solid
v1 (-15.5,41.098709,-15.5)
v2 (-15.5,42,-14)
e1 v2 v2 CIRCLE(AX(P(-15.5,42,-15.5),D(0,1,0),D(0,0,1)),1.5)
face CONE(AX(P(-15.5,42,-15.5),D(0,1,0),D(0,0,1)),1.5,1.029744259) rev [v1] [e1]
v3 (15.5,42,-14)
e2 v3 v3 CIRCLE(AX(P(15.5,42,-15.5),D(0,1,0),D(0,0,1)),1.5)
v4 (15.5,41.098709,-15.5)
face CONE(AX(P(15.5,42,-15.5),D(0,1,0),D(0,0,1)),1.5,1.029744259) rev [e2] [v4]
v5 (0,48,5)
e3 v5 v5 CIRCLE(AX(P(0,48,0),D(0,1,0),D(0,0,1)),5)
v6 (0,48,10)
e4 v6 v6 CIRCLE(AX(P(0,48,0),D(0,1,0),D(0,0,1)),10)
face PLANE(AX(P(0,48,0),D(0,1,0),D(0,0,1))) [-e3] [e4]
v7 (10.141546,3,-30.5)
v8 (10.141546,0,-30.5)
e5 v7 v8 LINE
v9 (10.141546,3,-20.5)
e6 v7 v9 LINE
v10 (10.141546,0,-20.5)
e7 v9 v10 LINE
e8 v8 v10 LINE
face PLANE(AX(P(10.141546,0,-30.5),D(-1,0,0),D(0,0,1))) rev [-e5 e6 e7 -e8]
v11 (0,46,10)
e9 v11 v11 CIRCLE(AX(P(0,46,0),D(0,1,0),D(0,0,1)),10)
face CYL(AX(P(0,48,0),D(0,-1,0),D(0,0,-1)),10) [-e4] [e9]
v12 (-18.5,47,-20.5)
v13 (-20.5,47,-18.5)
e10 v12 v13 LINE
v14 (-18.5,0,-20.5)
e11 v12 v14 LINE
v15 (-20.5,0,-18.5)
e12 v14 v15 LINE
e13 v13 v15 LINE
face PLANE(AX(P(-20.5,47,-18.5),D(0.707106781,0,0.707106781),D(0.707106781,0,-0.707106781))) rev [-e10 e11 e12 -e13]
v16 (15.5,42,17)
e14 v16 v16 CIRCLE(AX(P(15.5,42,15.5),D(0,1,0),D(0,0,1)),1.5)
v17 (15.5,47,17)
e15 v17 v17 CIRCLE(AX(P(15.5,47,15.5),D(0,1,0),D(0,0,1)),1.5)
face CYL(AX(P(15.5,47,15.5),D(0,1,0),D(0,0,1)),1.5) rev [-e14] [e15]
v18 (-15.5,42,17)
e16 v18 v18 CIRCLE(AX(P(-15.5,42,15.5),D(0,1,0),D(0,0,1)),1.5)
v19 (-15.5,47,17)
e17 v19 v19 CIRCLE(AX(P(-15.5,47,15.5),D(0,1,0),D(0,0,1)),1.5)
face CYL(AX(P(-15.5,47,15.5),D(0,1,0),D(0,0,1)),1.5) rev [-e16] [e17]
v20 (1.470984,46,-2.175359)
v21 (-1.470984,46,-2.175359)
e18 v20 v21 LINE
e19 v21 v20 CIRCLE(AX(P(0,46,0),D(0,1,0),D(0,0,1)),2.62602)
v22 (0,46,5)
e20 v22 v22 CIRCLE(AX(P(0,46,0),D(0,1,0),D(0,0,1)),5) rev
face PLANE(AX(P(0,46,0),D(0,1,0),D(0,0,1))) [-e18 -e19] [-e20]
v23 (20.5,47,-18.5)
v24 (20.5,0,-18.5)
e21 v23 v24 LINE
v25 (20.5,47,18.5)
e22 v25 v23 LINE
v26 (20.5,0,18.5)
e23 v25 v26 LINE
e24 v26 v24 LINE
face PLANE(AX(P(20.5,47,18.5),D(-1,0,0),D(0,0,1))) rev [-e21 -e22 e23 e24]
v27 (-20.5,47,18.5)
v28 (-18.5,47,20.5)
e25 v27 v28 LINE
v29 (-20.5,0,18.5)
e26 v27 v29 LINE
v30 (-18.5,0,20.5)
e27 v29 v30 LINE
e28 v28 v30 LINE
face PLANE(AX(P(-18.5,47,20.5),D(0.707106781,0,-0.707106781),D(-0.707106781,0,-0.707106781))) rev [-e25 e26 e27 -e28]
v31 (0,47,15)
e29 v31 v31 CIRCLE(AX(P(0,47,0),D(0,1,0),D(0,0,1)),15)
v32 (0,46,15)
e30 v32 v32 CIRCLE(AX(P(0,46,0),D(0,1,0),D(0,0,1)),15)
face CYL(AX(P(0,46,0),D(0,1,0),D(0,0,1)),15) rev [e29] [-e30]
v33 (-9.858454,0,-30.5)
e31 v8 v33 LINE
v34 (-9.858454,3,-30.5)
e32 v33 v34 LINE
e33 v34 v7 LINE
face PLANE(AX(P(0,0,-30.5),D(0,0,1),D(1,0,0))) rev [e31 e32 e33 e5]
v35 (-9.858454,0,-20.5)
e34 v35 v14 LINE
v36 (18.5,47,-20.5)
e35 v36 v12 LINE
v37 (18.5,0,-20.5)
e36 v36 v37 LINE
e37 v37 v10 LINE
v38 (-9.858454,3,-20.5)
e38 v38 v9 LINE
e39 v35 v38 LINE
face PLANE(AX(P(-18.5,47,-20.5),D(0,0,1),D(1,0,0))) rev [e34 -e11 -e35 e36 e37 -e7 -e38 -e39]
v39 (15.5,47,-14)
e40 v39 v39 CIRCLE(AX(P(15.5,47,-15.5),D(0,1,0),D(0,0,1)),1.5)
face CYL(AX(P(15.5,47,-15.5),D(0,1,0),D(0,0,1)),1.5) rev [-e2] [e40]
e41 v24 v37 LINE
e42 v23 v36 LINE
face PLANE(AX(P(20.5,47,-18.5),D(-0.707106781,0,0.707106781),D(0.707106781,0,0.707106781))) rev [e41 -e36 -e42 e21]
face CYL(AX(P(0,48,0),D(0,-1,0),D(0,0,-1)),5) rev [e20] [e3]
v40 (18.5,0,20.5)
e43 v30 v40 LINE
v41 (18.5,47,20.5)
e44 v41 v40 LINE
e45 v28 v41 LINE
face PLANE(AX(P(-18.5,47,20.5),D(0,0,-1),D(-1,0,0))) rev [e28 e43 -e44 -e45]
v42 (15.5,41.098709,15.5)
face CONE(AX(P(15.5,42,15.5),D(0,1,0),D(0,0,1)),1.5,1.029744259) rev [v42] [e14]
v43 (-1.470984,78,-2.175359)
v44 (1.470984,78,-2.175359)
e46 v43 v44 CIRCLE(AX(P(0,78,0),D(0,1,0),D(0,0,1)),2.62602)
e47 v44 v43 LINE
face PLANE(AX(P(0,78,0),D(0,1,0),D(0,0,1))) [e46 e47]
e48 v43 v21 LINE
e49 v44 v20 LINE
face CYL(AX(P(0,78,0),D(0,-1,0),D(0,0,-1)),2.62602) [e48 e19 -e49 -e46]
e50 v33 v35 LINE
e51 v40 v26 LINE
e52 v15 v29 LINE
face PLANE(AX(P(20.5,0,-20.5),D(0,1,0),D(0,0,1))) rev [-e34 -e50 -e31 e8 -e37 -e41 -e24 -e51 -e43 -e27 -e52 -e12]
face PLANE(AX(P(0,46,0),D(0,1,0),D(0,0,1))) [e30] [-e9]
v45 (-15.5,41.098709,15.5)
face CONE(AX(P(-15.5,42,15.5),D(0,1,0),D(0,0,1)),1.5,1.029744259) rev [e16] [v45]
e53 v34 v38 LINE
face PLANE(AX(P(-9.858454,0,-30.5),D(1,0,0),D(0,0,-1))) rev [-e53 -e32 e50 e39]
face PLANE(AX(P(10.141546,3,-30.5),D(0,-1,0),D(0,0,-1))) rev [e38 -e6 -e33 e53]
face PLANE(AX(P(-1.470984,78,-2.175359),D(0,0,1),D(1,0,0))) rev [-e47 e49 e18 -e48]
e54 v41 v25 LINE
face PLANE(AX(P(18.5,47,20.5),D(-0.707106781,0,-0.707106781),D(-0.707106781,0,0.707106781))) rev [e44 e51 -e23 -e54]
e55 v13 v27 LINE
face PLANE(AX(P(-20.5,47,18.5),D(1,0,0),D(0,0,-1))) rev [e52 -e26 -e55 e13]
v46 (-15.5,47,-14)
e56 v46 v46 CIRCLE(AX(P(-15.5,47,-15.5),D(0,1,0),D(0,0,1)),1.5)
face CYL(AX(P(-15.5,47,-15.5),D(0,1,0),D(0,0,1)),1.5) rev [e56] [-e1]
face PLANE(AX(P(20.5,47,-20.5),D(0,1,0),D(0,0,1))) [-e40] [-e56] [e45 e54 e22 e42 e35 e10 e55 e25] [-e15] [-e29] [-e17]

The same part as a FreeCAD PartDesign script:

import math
import FreeCAD as App
import Part
import Sketcher
Q = App.Units.Quantity


def add_polygon(sketch, points):
    """Adds a closed chain of lines whose ends are joined by coincident constraints."""
    first, n = sketch.GeometryCount, len(points)
    for a, b in zip(points, points[1:] + points[:1]):
        sketch.addGeometry(Part.LineSegment(App.Vector(*a, 0), App.Vector(*b, 0)), False)
    for i in range(n):
        sketch.addConstraint(Sketcher.Constraint("Coincident", first + i, 2, first + (i + 1) % n, 1))

doc = App.newDocument("Part")
body = doc.addObject("PartDesign::Body", "Body")

# Sketch on XZ plane
sketch1 = body.newObject("Sketcher::SketchObject", "Sketch")
sketch1.AttachmentSupport = (doc.getObject("XZ_Plane"), [""])
sketch1.MapMode = "FlatFace"
add_polygon(sketch1, [(-18.5, -20.5), (-20.5, -18.5), (-20.5, 18.5), (-18.5, 20.5), (18.5, 20.5), (20.5, 18.5), (20.5, -18.5), (18.5, -20.5)])  # lines 0-7
sketch1.addConstraint(Sketcher.Constraint("Vertical", 1))
sketch1.addConstraint(Sketcher.Constraint("Horizontal", 3))
sketch1.addConstraint(Sketcher.Constraint("Vertical", 5))
sketch1.addConstraint(Sketcher.Constraint("Horizontal", 7))
sketch1.addConstraint(Sketcher.Constraint("Symmetric", 0, 2, 4, 2, -1, 1))
sketch1.addConstraint(Sketcher.Constraint("Symmetric", 2, 2, 6, 2, -1, 1))
sketch1.addConstraint(Sketcher.Constraint("Perpendicular", 0, 2))
sketch1.addConstraint(Sketcher.Constraint("Perpendicular", 2, 4))
sketch1.addConstraint(Sketcher.Constraint("Perpendicular", 4, 6))
sketch1.addConstraint(Sketcher.Constraint("Horizontal", 1, 2, 4, 2))
sketch1.addConstraint(Sketcher.Constraint("Vertical", 3, 2, 6, 2))
sketch1.addConstraint(Sketcher.Constraint("Equal", 7, 1))
sketch1.addConstraint(Sketcher.Constraint("DistanceX", 3, 1, 3, 2, Q("37 mm")))
sketch1.addConstraint(Sketcher.Constraint("DistanceX", 1, 2, 2, 2, Q("2 mm")))
pad1 = body.newObject("PartDesign::Pad", "Pad")
pad1.Profile = sketch1
pad1.Length = 47
pad1.Reversed = True

# Sketch on XZ plane
sketch2 = body.newObject("Sketcher::SketchObject", "Sketch001")
sketch2.AttachmentSupport = (doc.getObject("XZ_Plane"), [""])
sketch2.MapMode = "FlatFace"
sketch2.AttachmentOffset = App.Placement(App.Vector(0, 0, -47), App.Rotation())
sketch2.addGeometry(Part.Circle(App.Vector(0, 0, 0), App.Vector(0, 0, 1), 15), False)
sketch2.addConstraint(Sketcher.Constraint("Coincident", 0, 3, -1, 1))
sketch2.addConstraint(Sketcher.Constraint("Diameter", 0, Q("30 mm")))
pocket1 = body.newObject("PartDesign::Pocket", "Pocket")
pocket1.Profile = sketch2
pocket1.Length = 1
pocket1.Reversed = True

# Sketch on XZ plane
sketch3 = body.newObject("Sketcher::SketchObject", "Sketch002")
sketch3.AttachmentSupport = (doc.getObject("XZ_Plane"), [""])
sketch3.MapMode = "FlatFace"
sketch3.AttachmentOffset = App.Placement(App.Vector(0, 0, -46), App.Rotation())
sketch3.addGeometry(Part.Circle(App.Vector(0, 0, 0), App.Vector(0, 0, 1), 10), False)
sketch3.addGeometry(Part.Circle(App.Vector(0, 0, 0), App.Vector(0, 0, 1), 5), False)
sketch3.addConstraint(Sketcher.Constraint("Coincident", 0, 3, -1, 1))
sketch3.addConstraint(Sketcher.Constraint("Coincident", 1, 3, -1, 1))
sketch3.addConstraint(Sketcher.Constraint("Diameter", 0, Q("20 mm")))
sketch3.addConstraint(Sketcher.Constraint("Diameter", 1, Q("10 mm")))
pad2 = body.newObject("PartDesign::Pad", "Pad001")
pad2.Profile = sketch3
pad2.Length = 2
pad2.Reversed = True

# Sketch on XZ plane
sketch4 = body.newObject("Sketcher::SketchObject", "Sketch003")
sketch4.AttachmentSupport = (doc.getObject("XZ_Plane"), [""])
sketch4.MapMode = "FlatFace"
sketch4.AttachmentOffset = App.Placement(App.Vector(0, 0, -46), App.Rotation())
sketch4.addGeometry(Part.LineSegment(App.Vector(1.470984, -2.175359, 0), App.Vector(-1.470984, -2.175359, 0)), False)
sketch4.addGeometry(Part.ArcOfCircle(Part.Circle(App.Vector(0, 0, 0), App.Vector(0, 0, 1), 2.62602), math.radians(-55.933328), math.radians(235.933328)), False)
sketch4.addConstraint(Sketcher.Constraint("Coincident", 0, 1, 1, 1))
sketch4.addConstraint(Sketcher.Constraint("Coincident", 1, 2, 0, 2))
sketch4.addConstraint(Sketcher.Constraint("Horizontal", 0))
sketch4.addConstraint(Sketcher.Constraint("Coincident", 1, 3, -1, 1))
sketch4.addConstraint(Sketcher.Constraint("Radius", 1, Q("2.62602 mm")))
sketch4.addConstraint(Sketcher.Constraint("DistanceX", 0, 2, 0, 1, Q("2.941968 mm")))
pad3 = body.newObject("PartDesign::Pad", "Pad002")
pad3.Profile = sketch4
pad3.Length = 32
pad3.Reversed = True

# Sketch on XZ plane
sketch5 = body.newObject("Sketcher::SketchObject", "Sketch004")
sketch5.AttachmentSupport = (doc.getObject("XZ_Plane"), [""])
sketch5.MapMode = "FlatFace"
sketch5.AttachmentOffset = App.Placement(App.Vector(0, 0, -47), App.Rotation())
sketch5.addGeometry(Part.Circle(App.Vector(15.5, -15.5, 0), App.Vector(0, 0, 1), 1.5), False)
sketch5.addGeometry(Part.Circle(App.Vector(-15.5, -15.5, 0), App.Vector(0, 0, 1), 1.5), False)
sketch5.addGeometry(Part.Circle(App.Vector(-15.5, 15.5, 0), App.Vector(0, 0, 1), 1.5), False)
sketch5.addGeometry(Part.Circle(App.Vector(15.5, 15.5, 0), App.Vector(0, 0, 1), 1.5), False)
sketch5.addConstraint(Sketcher.Constraint("Equal", 0, 1))
sketch5.addConstraint(Sketcher.Constraint("Equal", 1, 2))
sketch5.addConstraint(Sketcher.Constraint("Equal", 2, 3))
sketch5.addConstraint(Sketcher.Constraint("Symmetric", 0, 3, 2, 3, -1, 1))
sketch5.addConstraint(Sketcher.Constraint("Symmetric", 1, 3, 3, 3, -1, 1))
sketch5.addConstraint(Sketcher.Constraint("Symmetric", 0, 3, 1, 3, -2))
sketch5.addConstraint(Sketcher.Constraint("Diameter", 0, Q("3 mm")))
sketch5.addConstraint(Sketcher.Constraint("DistanceX", 1, 3, 0, 3, Q("31 mm")))
sketch5.addConstraint(Sketcher.Constraint("DistanceY", 1, 3, 2, 3, Q("31 mm")))
doc.recompute()
hole = body.newObject("PartDesign::Hole", "Hole")
hole.Profile = sketch5
hole.ThreadType = "None"
hole.Diameter = 3
hole.DepthType = "Dimension"
hole.Depth = 5
hole.DrillPoint = "Angled"
hole.DrillPointAngle = 118
hole.Reversed = True

# Sketch on XY plane
sketch6 = body.newObject("Sketcher::SketchObject", "Sketch005")
sketch6.AttachmentSupport = (doc.getObject("XY_Plane"), [""])
sketch6.MapMode = "FlatFace"
sketch6.AttachmentOffset = App.Placement(App.Vector(0, 0, -20.5), App.Rotation())
add_polygon(sketch6, [(10.141546, 3), (10.141546, 0), (-9.858454, 0), (-9.858454, 3)])  # lines 0-3
sketch6.addConstraint(Sketcher.Constraint("Vertical", 0))
sketch6.addConstraint(Sketcher.Constraint("Horizontal", 1))
sketch6.addConstraint(Sketcher.Constraint("Vertical", 2))
sketch6.addConstraint(Sketcher.Constraint("Horizontal", 3))
sketch6.addConstraint(Sketcher.Constraint("PointOnObject", 0, 2, -1))
sketch6.addConstraint(Sketcher.Constraint("DistanceX", 1, 2, 1, 1, Q("20 mm")))
sketch6.addConstraint(Sketcher.Constraint("DistanceY", 0, 2, 0, 1, Q("3 mm")))
sketch6.addConstraint(Sketcher.Constraint("DistanceX", -1, 1, 0, 2, Q("10.141546 mm")))
pad4 = body.newObject("PartDesign::Pad", "Pad003")
pad4.Profile = sketch6
pad4.Length = 10
pad4.Reversed = True

doc.recompute()
